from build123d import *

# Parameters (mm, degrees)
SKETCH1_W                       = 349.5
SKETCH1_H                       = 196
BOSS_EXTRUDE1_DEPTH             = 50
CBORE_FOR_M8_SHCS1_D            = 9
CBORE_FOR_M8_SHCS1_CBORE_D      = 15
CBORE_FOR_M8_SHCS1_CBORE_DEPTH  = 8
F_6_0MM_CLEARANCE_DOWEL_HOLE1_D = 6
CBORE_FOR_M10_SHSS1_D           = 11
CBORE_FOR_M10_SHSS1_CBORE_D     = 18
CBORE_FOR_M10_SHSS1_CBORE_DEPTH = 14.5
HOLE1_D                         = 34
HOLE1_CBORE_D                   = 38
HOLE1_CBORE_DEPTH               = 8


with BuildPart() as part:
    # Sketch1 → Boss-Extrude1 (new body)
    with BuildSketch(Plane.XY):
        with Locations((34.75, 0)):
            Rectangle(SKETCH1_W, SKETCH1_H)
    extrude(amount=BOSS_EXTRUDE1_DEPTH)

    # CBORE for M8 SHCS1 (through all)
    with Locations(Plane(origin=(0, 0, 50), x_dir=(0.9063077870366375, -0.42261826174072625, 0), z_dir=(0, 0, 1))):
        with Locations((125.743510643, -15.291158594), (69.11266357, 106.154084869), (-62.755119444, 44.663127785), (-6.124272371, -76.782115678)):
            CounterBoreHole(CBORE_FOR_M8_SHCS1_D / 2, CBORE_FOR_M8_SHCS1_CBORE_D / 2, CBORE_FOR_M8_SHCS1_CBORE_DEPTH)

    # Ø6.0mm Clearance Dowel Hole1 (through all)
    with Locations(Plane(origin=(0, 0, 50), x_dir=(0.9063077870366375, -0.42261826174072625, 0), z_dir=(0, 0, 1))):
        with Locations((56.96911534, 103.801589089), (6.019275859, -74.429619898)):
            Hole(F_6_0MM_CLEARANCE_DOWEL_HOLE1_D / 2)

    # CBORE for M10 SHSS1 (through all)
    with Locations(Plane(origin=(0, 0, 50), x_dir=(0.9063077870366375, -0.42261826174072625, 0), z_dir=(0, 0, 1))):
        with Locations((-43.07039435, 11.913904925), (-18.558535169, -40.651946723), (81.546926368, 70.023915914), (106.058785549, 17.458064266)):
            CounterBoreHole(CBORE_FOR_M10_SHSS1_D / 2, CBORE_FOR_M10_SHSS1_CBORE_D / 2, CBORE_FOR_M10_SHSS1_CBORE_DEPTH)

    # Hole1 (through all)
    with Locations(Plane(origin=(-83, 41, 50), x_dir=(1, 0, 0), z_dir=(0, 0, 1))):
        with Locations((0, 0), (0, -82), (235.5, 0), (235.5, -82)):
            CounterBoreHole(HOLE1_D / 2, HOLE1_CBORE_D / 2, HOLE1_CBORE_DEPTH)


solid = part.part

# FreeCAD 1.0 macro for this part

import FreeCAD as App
import Part
import Sketcher

V = App.Vector
Q = App.Units.Quantity


def add_polygon(sketch, points):
    """Adds a closed chain of lines whose ends are joined by coincident constraints."""
    first, n = sketch.GeometryCount, len(points)
    for a, b in zip(points, points[1:] + points[:1]):
        sketch.addGeometry(Part.LineSegment(App.Vector(*a, 0), App.Vector(*b, 0)), False)
    for i in range(n):
        sketch.addConstraint(Sketcher.Constraint("Coincident", first + i, 2, first + (i + 1) % n, 1))

doc = App.newDocument("Part")
body = doc.addObject("PartDesign::Body", "Body")

# Sketch on XY plane
sketch1 = doc.addObject("Sketcher::SketchObject", "Sketch")
body.addObject(sketch1)
sketch1.AttachmentSupport = (doc.XY_Plane, [""])
sketch1.MapMode = "FlatFace"
add_polygon(sketch1, [(-140, 98), (-140, -98), (210, -98), (210, 98)])  # lines 0-3
sketch1.addConstraint(Sketcher.Constraint("Vertical", 0))
sketch1.addConstraint(Sketcher.Constraint("Horizontal", 1))
sketch1.addConstraint(Sketcher.Constraint("Vertical", 2))
sketch1.addConstraint(Sketcher.Constraint("Horizontal", 3))
sketch1.addConstraint(Sketcher.Constraint("DistanceY", 0, 2, 0, 1, Q("196 mm")))
sketch1.addConstraint(Sketcher.Constraint("DistanceX", 1, 1, 1, 2, Q("349.5 mm")))
sketch1.addConstraint(Sketcher.Constraint("DistanceX", 0, 2, -1, 1, Q("140 mm")))
sketch1.addConstraint(Sketcher.Constraint("DistanceY", 0, 2, -1, 1, Q("98 mm")))
pad1 = doc.addObject("PartDesign::Pad", "Pad")
body.addObject(pad1)
pad1.Profile = sketch1
pad1.Length = 50

# Sketch on XY plane
sketch2 = doc.addObject("Sketcher::SketchObject", "Sketch001")
body.addObject(sketch2)
sketch2.AttachmentSupport = (doc.XY_Plane, [""])
sketch2.MapMode = "FlatFace"
sketch2.AttachmentOffset = App.Placement(V(0, 0, 50), App.Rotation())
sketch2.addGeometry(Part.Circle(V(107.5, -67, 0), V(0, 0, 1), 4.5), False)
sketch2.addGeometry(Part.Circle(V(107.5, 67, 0), V(0, 0, 1), 4.5), False)
sketch2.addGeometry(Part.Circle(V(-38, 67, 0), V(0, 0, 1), 4.5), False)
sketch2.addGeometry(Part.Circle(V(-38, -67, 0), V(0, 0, 1), 4.5), False)
sketch2.addConstraint(Sketcher.Constraint("Equal", 0, 1))
sketch2.addConstraint(Sketcher.Constraint("Equal", 1, 2))
sketch2.addConstraint(Sketcher.Constraint("Equal", 2, 3))
sketch2.addConstraint(Sketcher.Constraint("Symmetric", 0, 3, 1, 3, -1))
sketch2.addConstraint(Sketcher.Constraint("Symmetric", 2, 3, 3, 3, -1))
sketch2.addConstraint(Sketcher.Constraint("Horizontal", 1, 3, 2, 3))
sketch2.addConstraint(Sketcher.Constraint("Diameter", 0, Q("9 mm")))
sketch2.addConstraint(Sketcher.Constraint("DistanceY", 0, 3, -1, 1, Q("67 mm")))
sketch2.addConstraint(Sketcher.Constraint("DistanceX", 2, 3, -1, 1, Q("38 mm")))
sketch2.addConstraint(Sketcher.Constraint("DistanceX", -1, 1, 0, 3, Q("107.5 mm")))
doc.recompute()
hole = doc.addObject("PartDesign::Hole", "Hole")
body.addObject(hole)
hole.Profile = sketch2
hole.ThreadType = "None"
hole.Diameter = 9
hole.DepthType = "ThroughAll"
hole.HoleCutType = "Counterbore"
hole.HoleCutDiameter = 15
hole.HoleCutDepth = 8

# Sketch on XY plane
sketch3 = doc.addObject("Sketcher::SketchObject", "Sketch002")
body.addObject(sketch3)
sketch3.AttachmentSupport = (doc.XY_Plane, [""])
sketch3.MapMode = "FlatFace"
sketch3.AttachmentOffset = App.Placement(V(0, 0, 50), App.Rotation())
sketch3.addGeometry(Part.Circle(V(95.5, 70, 0), V(0, 0, 1), 3), False)
sketch3.addGeometry(Part.Circle(V(-26, -70, 0), V(0, 0, 1), 3), False)
sketch3.addConstraint(Sketcher.Constraint("Equal", 0, 1))
sketch3.addConstraint(Sketcher.Constraint("Diameter", 0, Q("6 mm")))
sketch3.addConstraint(Sketcher.Constraint("DistanceY", -1, 1, 0, 3, Q("70 mm")))
sketch3.addConstraint(Sketcher.Constraint("DistanceX", 1, 3, -1, 1, Q("26 mm")))
sketch3.addConstraint(Sketcher.Constraint("DistanceY", 1, 3, -1, 1, Q("70 mm")))
sketch3.addConstraint(Sketcher.Constraint("DistanceX", -1, 1, 0, 3, Q("95.5 mm")))
doc.recompute()
hole2 = doc.addObject("PartDesign::Hole", "Hole001")
body.addObject(hole2)
hole2.Profile = sketch3
hole2.ThreadType = "None"
hole2.Diameter = 6
hole2.DepthType = "ThroughAll"

# Sketch on XY plane
sketch4 = doc.addObject("Sketcher::SketchObject", "Sketch003")
body.addObject(sketch4)
sketch4.AttachmentSupport = (doc.XY_Plane, [""])
sketch4.MapMode = "FlatFace"
sketch4.AttachmentOffset = App.Placement(V(0, 0, 50), App.Rotation())
sketch4.addGeometry(Part.Circle(V(-34, 29, 0), V(0, 0, 1), 6), False)
sketch4.addGeometry(Part.Circle(V(-34, -29, 0), V(0, 0, 1), 6), False)
sketch4.addGeometry(Part.Circle(V(104, 29, 0), V(0, 0, 1), 6), False)
sketch4.addGeometry(Part.Circle(V(104, -29, 0), V(0, 0, 1), 6), False)
sketch4.addConstraint(Sketcher.Constraint("Equal", 0, 1))
sketch4.addConstraint(Sketcher.Constraint("Equal", 1, 2))
sketch4.addConstraint(Sketcher.Constraint("Equal", 2, 3))
sketch4.addConstraint(Sketcher.Constraint("Symmetric", 0, 3, 1, 3, -1))
sketch4.addConstraint(Sketcher.Constraint("Symmetric", 2, 3, 3, 3, -1))
sketch4.addConstraint(Sketcher.Constraint("Horizontal", 0, 3, 2, 3))
sketch4.addConstraint(Sketcher.Constraint("Diameter", 0, Q("11 mm")))
sketch4.addConstraint(Sketcher.Constraint("DistanceX", 0, 3, -1, 1, Q("34 mm")))
sketch4.addConstraint(Sketcher.Constraint("DistanceY", -1, 1, 0, 3, Q("29 mm")))
sketch4.addConstraint(Sketcher.Constraint("DistanceX", -1, 1, 2, 3, Q("103.5 mm")))
doc.recompute()
hole3 = doc.addObject("PartDesign::Hole", "Hole002")
body.addObject(hole3)
hole3.Profile = sketch4
hole3.ThreadType = "None"
hole3.Diameter = 11
hole3.DepthType = "ThroughAll"
hole3.HoleCutType = "Counterbore"
hole3.HoleCutDiameter = 18
hole3.HoleCutDepth = 14.5

# Sketch on XY plane
sketch5 = doc.addObject("Sketcher::SketchObject", "Sketch004")
body.addObject(sketch5)
sketch5.AttachmentSupport = (doc.XY_Plane, [""])
sketch5.MapMode = "FlatFace"
sketch5.AttachmentOffset = App.Placement(V(0, 0, 50), App.Rotation())
sketch5.addGeometry(Part.Circle(V(-83, 41, 0), V(0, 0, 1), 17), False)
sketch5.addGeometry(Part.Circle(V(-83, -41, 0), V(0, 0, 1), 17), False)
sketch5.addGeometry(Part.Circle(V(152, 41, 0), V(0, 0, 1), 17), False)
sketch5.addGeometry(Part.Circle(V(152, -41, 0), V(0, 0, 1), 17), False)
sketch5.addConstraint(Sketcher.Constraint("Equal", 0, 1))
sketch5.addConstraint(Sketcher.Constraint("Equal", 1, 2))
sketch5.addConstraint(Sketcher.Constraint("Equal", 2, 3))
sketch5.addConstraint(Sketcher.Constraint("Symmetric", 0, 3, 1, 3, -1))
sketch5.addConstraint(Sketcher.Constraint("Symmetric", 2, 3, 3, 3, -1))
sketch5.addConstraint(Sketcher.Constraint("Horizontal", 0, 3, 2, 3))
sketch5.addConstraint(Sketcher.Constraint("Diameter", 0, Q("34 mm")))
sketch5.addConstraint(Sketcher.Constraint("DistanceX", 0, 3, -1, 1, Q("83 mm")))
sketch5.addConstraint(Sketcher.Constraint("DistanceY", -1, 1, 0, 3, Q("41 mm")))
sketch5.addConstraint(Sketcher.Constraint("DistanceX", -1, 1, 2, 3, Q("152.5 mm")))
doc.recompute()
hole4 = doc.addObject("PartDesign::Hole", "Hole003")
body.addObject(hole4)
hole4.Profile = sketch5
hole4.ThreadType = "None"
hole4.Diameter = 34
hole4.DepthType = "ThroughAll"
hole4.HoleCutType = "Counterbore"
hole4.HoleCutDiameter = 38
hole4.HoleCutDepth = 8

doc.recompute()
